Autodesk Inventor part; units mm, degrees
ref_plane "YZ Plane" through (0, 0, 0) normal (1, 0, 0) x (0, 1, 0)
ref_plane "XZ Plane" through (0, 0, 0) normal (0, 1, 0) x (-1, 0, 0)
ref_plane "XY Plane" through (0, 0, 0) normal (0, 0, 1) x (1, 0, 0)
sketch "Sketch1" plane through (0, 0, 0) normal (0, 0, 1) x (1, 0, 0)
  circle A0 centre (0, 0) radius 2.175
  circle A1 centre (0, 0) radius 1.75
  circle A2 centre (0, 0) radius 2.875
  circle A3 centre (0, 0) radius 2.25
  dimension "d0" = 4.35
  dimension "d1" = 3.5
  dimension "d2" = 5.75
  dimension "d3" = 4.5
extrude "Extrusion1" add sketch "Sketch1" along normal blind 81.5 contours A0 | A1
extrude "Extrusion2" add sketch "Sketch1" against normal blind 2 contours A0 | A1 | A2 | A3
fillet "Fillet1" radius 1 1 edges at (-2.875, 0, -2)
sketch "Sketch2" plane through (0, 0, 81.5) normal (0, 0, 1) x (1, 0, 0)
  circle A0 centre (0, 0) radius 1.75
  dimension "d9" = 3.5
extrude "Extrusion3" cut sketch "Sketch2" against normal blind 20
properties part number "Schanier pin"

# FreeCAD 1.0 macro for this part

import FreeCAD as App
import Part
import Sketcher
Q = App.Units.Quantity


def edges_at(feature, points):
    """Names of the edges that pass closest to the given points."""
    edges = feature.Shape.Edges
    near = lambda p: min(range(len(edges)), key=lambda i: edges[i].distToShape(Part.Vertex(*p))[0])
    return sorted({f"Edge{near(p) + 1}" for p in points})

doc = App.newDocument("Part")
body = doc.addObject("PartDesign::Body", "Body")

# Sketch on XY plane
sketch1 = body.newObject("Sketcher::SketchObject", "Sketch")
sketch1.AttachmentSupport = (doc.getObject("XY_Plane"), [""])
sketch1.MapMode = "FlatFace"
sketch1.addGeometry(Part.Circle(App.Vector(0, 0, 0), App.Vector(0, 0, 1), 2.2), False)
sketch1.addConstraint(Sketcher.Constraint("Coincident", 0, 3, -1, 1))
sketch1.addConstraint(Sketcher.Constraint("Diameter", 0, Q("4.35 mm")))
pad1 = body.newObject("PartDesign::Pad", "Pad")
pad1.Profile = sketch1
pad1.Length = 81.5

# Sketch on XY plane
sketch2 = body.newObject("Sketcher::SketchObject", "Sketch001")
sketch2.AttachmentSupport = (doc.getObject("XY_Plane"), [""])
sketch2.MapMode = "FlatFace"
sketch2.addGeometry(Part.Circle(App.Vector(0, 0, 0), App.Vector(0, 0, 1), 2.9), False)
sketch2.addConstraint(Sketcher.Constraint("Coincident", 0, 3, -1, 1))
sketch2.addConstraint(Sketcher.Constraint("Diameter", 0, Q("5.75 mm")))
pad2 = body.newObject("PartDesign::Pad", "Pad001")
pad2.Profile = sketch2
pad2.Length = 2
pad2.Reversed = True
doc.recompute()

fillet = body.newObject("PartDesign::Fillet", "Fillet")
fillet.Base = (pad2, edges_at(pad2, [(-2.875, 0, -2)]))
fillet.Radius = 1

# Sketch on XY plane
sketch3 = body.newObject("Sketcher::SketchObject", "Sketch002")
sketch3.AttachmentSupport = (doc.getObject("XY_Plane"), [""])
sketch3.MapMode = "FlatFace"
sketch3.AttachmentOffset = App.Placement(App.Vector(0, 0, 81.5), App.Rotation())
sketch3.addGeometry(Part.Circle(App.Vector(0, 0, 0), App.Vector(0, 0, 1), 1.8), False)
sketch3.addConstraint(Sketcher.Constraint("Coincident", 0, 3, -1, 1))
sketch3.addConstraint(Sketcher.Constraint("Diameter", 0, Q("3.5 mm")))
pocket1 = body.newObject("PartDesign::Pocket", "Pocket")
pocket1.Profile = sketch3
pocket1.Length = 20

doc.recompute()
